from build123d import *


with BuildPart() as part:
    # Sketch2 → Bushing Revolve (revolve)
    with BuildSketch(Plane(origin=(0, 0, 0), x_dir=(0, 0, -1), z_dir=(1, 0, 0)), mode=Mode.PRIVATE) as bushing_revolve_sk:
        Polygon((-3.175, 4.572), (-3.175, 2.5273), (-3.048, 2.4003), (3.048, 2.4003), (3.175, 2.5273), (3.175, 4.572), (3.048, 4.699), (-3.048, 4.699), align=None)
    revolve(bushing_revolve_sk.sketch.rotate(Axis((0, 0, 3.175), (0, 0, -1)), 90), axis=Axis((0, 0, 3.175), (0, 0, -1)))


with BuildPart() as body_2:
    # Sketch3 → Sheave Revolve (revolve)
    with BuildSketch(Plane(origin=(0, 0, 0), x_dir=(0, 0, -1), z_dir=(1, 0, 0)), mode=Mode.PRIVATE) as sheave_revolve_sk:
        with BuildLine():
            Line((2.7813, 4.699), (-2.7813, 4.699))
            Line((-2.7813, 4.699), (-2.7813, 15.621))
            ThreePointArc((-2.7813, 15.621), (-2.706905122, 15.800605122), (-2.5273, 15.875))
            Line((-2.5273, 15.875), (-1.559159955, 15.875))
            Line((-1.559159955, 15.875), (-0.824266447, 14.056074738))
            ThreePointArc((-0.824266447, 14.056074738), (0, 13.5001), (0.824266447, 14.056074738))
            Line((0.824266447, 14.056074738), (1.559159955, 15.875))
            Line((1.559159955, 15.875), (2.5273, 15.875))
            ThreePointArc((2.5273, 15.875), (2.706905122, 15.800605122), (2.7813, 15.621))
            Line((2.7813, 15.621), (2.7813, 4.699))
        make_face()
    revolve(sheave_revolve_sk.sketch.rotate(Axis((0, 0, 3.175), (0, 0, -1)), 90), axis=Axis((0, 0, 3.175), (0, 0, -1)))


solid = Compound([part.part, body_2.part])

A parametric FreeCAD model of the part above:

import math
import FreeCAD as App
import Part
import Sketcher

V = App.Vector
Q = App.Units.Quantity

doc = App.newDocument("Part")
body = doc.addObject("PartDesign::Body", "Body")

# Sketch on YZ plane
sketch1 = body.newObject("Sketcher::SketchObject", "Sketch")
sketch1.AttachmentSupport = (doc.getObject("YZ_Plane"), [""])
sketch1.MapMode = "FlatFace"
sketch1.addGeometry([
    Part.LineSegment(V(4.57, 3.17, 0), V(2.53, 3.17, 0)),  # 0
    Part.LineSegment(V(2.53, 3.17, 0), V(2.4, 3.05, 0)),  # 1
    Part.LineSegment(V(2.4, 3.05, 0), V(2.4, -3.05, 0)),  # 2
    Part.LineSegment(V(2.4, -3.05, 0), V(2.53, -3.17, 0)),  # 3
    Part.LineSegment(V(2.53, -3.17, 0), V(4.57, -3.17, 0)),  # 4
    Part.LineSegment(V(4.57, -3.17, 0), V(4.7, -3.05, 0)),  # 5
    Part.LineSegment(V(4.7, -3.05, 0), V(4.7, 3.05, 0)),  # 6
    Part.LineSegment(V(4.7, 3.05, 0), V(4.57, 3.17, 0)),  # 7
], False)
sketch1.addConstraint([
    Sketcher.Constraint("Coincident", 0, 2, 1, 1),
    Sketcher.Constraint("Coincident", 1, 2, 2, 1),
    Sketcher.Constraint("Coincident", 2, 2, 3, 1),
    Sketcher.Constraint("Coincident", 3, 2, 4, 1),
    Sketcher.Constraint("Coincident", 4, 2, 5, 1),
    Sketcher.Constraint("Coincident", 5, 2, 6, 1),
    Sketcher.Constraint("Coincident", 6, 2, 7, 1),
    Sketcher.Constraint("Coincident", 7, 2, 0, 1),
    Sketcher.Constraint("Horizontal", 0),
    Sketcher.Constraint("Vertical", 2),
    Sketcher.Constraint("Horizontal", 4),
    Sketcher.Constraint("Vertical", 6),
    Sketcher.Constraint("Symmetric", 0, 2, 3, 2, -1),
    Sketcher.Constraint("Perpendicular", 1, 3),
    Sketcher.Constraint("Perpendicular", 3, 5),
    Sketcher.Constraint("Perpendicular", 5, 7),
    Sketcher.Constraint("Horizontal", 2, 2, 5, 2),
    Sketcher.Constraint("Horizontal", 1, 2, 6, 2),
    Sketcher.Constraint("Vertical", 4, 2, 7, 2),
    Sketcher.Constraint("DistanceY", 2, 2, 2, 1, Q("0.24 in")),
    Sketcher.Constraint("DistanceX", -1, 1, 4, 2, Q("0.18 in")),
    Sketcher.Constraint("DistanceY", 3, 2, 0, 2, Q("0.25 in")),
    Sketcher.Constraint("DistanceX", 0, 2, 0, 1, Q("0.0805 in")),
])
revolution = body.newObject("PartDesign::Revolution", "Revolution")
revolution.Profile = sketch1
revolution.ReferenceAxis = (sketch1, ["V_Axis"])
revolution.Angle = 360
body2 = doc.addObject("PartDesign::Body", "Body001")

# Sketch on YZ plane
sketch2 = body2.newObject("Sketcher::SketchObject", "Sketch001")
sketch2.AttachmentSupport = (doc.getObject("YZ_Plane001"), [""])
sketch2.MapMode = "FlatFace"
sketch2.addGeometry([
    Part.LineSegment(V(4.7, 2.78, 0), V(4.7, -2.78, 0)),  # 0
    Part.LineSegment(V(4.7, -2.78, 0), V(15.62, -2.78, 0)),  # 1
    Part.ArcOfCircle(Part.Circle(V(15.62, -2.53, 0), V(0, 0, 1), 0.25), math.radians(-90), math.radians(0)),  # 2
    Part.LineSegment(V(15.88, -2.53, 0), V(15.88, -1.56, 0)),  # 3
    Part.LineSegment(V(15.88, -1.56, 0), V(14.06, -0.82, 0)),  # 4
    Part.ArcOfCircle(Part.Circle(V(14.39, 0, 0), V(0, 0, 1), 0.89), math.radians(112), math.radians(248)),  # 5
    Part.LineSegment(V(14.06, 0.82, 0), V(15.88, 1.56, 0)),  # 6
    Part.LineSegment(V(15.88, 1.56, 0), V(15.88, 2.53, 0)),  # 7
    Part.ArcOfCircle(Part.Circle(V(15.62, 2.53, 0), V(0, 0, 1), 0.25), math.radians(0), math.radians(90)),  # 8
    Part.LineSegment(V(15.62, 2.78, 0), V(4.7, 2.78, 0)),  # 9
], False)
sketch2.addConstraint([
    Sketcher.Constraint("Coincident", 0, 2, 1, 1),
    Sketcher.Constraint("Tangent", 1, 2, 2, 1),
    Sketcher.Constraint("Tangent", 2, 2, 3, 1),
    Sketcher.Constraint("Coincident", 3, 2, 4, 1),
    Sketcher.Constraint("Tangent", 4, 2, 5, 2),
    Sketcher.Constraint("Tangent", 5, 1, 6, 1),
    Sketcher.Constraint("Coincident", 6, 2, 7, 1),
    Sketcher.Constraint("Tangent", 7, 2, 8, 1),
    Sketcher.Constraint("Tangent", 8, 2, 9, 1),
    Sketcher.Constraint("Coincident", 9, 2, 0, 1),
    Sketcher.Constraint("Vertical", 0),
    Sketcher.Constraint("Horizontal", 1),
    Sketcher.Constraint("Vertical", 3),
    Sketcher.Constraint("Vertical", 7),
    Sketcher.Constraint("Horizontal", 9),
    Sketcher.Constraint("Equal", 2, 8),
    Sketcher.Constraint("Symmetric", 2, 3, 8, 3, -1),
    Sketcher.Constraint("Symmetric", 4, 2, 5, 1, -1),
    Sketcher.Constraint("Radius", 2, Q("0.01 in")),
    Sketcher.Constraint("Angle", 4, Q("158 deg")),
    Sketcher.Constraint("Radius", 5, Q("0.035 in")),
    Sketcher.Constraint("DistanceX", 1, 1, 1, 2, Q("0.43 in")),
    Sketcher.Constraint("DistanceY", 0, 2, 0, 1, Q("0.219 in")),
    Sketcher.Constraint("DistanceX", -1, 1, 2, 3, Q("0.615 in")),
    Sketcher.Constraint("DistanceX", -1, 1, 5, 3, Q("0.5665 in")),
])
revolution2 = body2.newObject("PartDesign::Revolution", "Revolution001")
revolution2.Profile = sketch2
revolution2.ReferenceAxis = (sketch2, ["V_Axis"])
revolution2.Angle = 360

doc.recompute()
